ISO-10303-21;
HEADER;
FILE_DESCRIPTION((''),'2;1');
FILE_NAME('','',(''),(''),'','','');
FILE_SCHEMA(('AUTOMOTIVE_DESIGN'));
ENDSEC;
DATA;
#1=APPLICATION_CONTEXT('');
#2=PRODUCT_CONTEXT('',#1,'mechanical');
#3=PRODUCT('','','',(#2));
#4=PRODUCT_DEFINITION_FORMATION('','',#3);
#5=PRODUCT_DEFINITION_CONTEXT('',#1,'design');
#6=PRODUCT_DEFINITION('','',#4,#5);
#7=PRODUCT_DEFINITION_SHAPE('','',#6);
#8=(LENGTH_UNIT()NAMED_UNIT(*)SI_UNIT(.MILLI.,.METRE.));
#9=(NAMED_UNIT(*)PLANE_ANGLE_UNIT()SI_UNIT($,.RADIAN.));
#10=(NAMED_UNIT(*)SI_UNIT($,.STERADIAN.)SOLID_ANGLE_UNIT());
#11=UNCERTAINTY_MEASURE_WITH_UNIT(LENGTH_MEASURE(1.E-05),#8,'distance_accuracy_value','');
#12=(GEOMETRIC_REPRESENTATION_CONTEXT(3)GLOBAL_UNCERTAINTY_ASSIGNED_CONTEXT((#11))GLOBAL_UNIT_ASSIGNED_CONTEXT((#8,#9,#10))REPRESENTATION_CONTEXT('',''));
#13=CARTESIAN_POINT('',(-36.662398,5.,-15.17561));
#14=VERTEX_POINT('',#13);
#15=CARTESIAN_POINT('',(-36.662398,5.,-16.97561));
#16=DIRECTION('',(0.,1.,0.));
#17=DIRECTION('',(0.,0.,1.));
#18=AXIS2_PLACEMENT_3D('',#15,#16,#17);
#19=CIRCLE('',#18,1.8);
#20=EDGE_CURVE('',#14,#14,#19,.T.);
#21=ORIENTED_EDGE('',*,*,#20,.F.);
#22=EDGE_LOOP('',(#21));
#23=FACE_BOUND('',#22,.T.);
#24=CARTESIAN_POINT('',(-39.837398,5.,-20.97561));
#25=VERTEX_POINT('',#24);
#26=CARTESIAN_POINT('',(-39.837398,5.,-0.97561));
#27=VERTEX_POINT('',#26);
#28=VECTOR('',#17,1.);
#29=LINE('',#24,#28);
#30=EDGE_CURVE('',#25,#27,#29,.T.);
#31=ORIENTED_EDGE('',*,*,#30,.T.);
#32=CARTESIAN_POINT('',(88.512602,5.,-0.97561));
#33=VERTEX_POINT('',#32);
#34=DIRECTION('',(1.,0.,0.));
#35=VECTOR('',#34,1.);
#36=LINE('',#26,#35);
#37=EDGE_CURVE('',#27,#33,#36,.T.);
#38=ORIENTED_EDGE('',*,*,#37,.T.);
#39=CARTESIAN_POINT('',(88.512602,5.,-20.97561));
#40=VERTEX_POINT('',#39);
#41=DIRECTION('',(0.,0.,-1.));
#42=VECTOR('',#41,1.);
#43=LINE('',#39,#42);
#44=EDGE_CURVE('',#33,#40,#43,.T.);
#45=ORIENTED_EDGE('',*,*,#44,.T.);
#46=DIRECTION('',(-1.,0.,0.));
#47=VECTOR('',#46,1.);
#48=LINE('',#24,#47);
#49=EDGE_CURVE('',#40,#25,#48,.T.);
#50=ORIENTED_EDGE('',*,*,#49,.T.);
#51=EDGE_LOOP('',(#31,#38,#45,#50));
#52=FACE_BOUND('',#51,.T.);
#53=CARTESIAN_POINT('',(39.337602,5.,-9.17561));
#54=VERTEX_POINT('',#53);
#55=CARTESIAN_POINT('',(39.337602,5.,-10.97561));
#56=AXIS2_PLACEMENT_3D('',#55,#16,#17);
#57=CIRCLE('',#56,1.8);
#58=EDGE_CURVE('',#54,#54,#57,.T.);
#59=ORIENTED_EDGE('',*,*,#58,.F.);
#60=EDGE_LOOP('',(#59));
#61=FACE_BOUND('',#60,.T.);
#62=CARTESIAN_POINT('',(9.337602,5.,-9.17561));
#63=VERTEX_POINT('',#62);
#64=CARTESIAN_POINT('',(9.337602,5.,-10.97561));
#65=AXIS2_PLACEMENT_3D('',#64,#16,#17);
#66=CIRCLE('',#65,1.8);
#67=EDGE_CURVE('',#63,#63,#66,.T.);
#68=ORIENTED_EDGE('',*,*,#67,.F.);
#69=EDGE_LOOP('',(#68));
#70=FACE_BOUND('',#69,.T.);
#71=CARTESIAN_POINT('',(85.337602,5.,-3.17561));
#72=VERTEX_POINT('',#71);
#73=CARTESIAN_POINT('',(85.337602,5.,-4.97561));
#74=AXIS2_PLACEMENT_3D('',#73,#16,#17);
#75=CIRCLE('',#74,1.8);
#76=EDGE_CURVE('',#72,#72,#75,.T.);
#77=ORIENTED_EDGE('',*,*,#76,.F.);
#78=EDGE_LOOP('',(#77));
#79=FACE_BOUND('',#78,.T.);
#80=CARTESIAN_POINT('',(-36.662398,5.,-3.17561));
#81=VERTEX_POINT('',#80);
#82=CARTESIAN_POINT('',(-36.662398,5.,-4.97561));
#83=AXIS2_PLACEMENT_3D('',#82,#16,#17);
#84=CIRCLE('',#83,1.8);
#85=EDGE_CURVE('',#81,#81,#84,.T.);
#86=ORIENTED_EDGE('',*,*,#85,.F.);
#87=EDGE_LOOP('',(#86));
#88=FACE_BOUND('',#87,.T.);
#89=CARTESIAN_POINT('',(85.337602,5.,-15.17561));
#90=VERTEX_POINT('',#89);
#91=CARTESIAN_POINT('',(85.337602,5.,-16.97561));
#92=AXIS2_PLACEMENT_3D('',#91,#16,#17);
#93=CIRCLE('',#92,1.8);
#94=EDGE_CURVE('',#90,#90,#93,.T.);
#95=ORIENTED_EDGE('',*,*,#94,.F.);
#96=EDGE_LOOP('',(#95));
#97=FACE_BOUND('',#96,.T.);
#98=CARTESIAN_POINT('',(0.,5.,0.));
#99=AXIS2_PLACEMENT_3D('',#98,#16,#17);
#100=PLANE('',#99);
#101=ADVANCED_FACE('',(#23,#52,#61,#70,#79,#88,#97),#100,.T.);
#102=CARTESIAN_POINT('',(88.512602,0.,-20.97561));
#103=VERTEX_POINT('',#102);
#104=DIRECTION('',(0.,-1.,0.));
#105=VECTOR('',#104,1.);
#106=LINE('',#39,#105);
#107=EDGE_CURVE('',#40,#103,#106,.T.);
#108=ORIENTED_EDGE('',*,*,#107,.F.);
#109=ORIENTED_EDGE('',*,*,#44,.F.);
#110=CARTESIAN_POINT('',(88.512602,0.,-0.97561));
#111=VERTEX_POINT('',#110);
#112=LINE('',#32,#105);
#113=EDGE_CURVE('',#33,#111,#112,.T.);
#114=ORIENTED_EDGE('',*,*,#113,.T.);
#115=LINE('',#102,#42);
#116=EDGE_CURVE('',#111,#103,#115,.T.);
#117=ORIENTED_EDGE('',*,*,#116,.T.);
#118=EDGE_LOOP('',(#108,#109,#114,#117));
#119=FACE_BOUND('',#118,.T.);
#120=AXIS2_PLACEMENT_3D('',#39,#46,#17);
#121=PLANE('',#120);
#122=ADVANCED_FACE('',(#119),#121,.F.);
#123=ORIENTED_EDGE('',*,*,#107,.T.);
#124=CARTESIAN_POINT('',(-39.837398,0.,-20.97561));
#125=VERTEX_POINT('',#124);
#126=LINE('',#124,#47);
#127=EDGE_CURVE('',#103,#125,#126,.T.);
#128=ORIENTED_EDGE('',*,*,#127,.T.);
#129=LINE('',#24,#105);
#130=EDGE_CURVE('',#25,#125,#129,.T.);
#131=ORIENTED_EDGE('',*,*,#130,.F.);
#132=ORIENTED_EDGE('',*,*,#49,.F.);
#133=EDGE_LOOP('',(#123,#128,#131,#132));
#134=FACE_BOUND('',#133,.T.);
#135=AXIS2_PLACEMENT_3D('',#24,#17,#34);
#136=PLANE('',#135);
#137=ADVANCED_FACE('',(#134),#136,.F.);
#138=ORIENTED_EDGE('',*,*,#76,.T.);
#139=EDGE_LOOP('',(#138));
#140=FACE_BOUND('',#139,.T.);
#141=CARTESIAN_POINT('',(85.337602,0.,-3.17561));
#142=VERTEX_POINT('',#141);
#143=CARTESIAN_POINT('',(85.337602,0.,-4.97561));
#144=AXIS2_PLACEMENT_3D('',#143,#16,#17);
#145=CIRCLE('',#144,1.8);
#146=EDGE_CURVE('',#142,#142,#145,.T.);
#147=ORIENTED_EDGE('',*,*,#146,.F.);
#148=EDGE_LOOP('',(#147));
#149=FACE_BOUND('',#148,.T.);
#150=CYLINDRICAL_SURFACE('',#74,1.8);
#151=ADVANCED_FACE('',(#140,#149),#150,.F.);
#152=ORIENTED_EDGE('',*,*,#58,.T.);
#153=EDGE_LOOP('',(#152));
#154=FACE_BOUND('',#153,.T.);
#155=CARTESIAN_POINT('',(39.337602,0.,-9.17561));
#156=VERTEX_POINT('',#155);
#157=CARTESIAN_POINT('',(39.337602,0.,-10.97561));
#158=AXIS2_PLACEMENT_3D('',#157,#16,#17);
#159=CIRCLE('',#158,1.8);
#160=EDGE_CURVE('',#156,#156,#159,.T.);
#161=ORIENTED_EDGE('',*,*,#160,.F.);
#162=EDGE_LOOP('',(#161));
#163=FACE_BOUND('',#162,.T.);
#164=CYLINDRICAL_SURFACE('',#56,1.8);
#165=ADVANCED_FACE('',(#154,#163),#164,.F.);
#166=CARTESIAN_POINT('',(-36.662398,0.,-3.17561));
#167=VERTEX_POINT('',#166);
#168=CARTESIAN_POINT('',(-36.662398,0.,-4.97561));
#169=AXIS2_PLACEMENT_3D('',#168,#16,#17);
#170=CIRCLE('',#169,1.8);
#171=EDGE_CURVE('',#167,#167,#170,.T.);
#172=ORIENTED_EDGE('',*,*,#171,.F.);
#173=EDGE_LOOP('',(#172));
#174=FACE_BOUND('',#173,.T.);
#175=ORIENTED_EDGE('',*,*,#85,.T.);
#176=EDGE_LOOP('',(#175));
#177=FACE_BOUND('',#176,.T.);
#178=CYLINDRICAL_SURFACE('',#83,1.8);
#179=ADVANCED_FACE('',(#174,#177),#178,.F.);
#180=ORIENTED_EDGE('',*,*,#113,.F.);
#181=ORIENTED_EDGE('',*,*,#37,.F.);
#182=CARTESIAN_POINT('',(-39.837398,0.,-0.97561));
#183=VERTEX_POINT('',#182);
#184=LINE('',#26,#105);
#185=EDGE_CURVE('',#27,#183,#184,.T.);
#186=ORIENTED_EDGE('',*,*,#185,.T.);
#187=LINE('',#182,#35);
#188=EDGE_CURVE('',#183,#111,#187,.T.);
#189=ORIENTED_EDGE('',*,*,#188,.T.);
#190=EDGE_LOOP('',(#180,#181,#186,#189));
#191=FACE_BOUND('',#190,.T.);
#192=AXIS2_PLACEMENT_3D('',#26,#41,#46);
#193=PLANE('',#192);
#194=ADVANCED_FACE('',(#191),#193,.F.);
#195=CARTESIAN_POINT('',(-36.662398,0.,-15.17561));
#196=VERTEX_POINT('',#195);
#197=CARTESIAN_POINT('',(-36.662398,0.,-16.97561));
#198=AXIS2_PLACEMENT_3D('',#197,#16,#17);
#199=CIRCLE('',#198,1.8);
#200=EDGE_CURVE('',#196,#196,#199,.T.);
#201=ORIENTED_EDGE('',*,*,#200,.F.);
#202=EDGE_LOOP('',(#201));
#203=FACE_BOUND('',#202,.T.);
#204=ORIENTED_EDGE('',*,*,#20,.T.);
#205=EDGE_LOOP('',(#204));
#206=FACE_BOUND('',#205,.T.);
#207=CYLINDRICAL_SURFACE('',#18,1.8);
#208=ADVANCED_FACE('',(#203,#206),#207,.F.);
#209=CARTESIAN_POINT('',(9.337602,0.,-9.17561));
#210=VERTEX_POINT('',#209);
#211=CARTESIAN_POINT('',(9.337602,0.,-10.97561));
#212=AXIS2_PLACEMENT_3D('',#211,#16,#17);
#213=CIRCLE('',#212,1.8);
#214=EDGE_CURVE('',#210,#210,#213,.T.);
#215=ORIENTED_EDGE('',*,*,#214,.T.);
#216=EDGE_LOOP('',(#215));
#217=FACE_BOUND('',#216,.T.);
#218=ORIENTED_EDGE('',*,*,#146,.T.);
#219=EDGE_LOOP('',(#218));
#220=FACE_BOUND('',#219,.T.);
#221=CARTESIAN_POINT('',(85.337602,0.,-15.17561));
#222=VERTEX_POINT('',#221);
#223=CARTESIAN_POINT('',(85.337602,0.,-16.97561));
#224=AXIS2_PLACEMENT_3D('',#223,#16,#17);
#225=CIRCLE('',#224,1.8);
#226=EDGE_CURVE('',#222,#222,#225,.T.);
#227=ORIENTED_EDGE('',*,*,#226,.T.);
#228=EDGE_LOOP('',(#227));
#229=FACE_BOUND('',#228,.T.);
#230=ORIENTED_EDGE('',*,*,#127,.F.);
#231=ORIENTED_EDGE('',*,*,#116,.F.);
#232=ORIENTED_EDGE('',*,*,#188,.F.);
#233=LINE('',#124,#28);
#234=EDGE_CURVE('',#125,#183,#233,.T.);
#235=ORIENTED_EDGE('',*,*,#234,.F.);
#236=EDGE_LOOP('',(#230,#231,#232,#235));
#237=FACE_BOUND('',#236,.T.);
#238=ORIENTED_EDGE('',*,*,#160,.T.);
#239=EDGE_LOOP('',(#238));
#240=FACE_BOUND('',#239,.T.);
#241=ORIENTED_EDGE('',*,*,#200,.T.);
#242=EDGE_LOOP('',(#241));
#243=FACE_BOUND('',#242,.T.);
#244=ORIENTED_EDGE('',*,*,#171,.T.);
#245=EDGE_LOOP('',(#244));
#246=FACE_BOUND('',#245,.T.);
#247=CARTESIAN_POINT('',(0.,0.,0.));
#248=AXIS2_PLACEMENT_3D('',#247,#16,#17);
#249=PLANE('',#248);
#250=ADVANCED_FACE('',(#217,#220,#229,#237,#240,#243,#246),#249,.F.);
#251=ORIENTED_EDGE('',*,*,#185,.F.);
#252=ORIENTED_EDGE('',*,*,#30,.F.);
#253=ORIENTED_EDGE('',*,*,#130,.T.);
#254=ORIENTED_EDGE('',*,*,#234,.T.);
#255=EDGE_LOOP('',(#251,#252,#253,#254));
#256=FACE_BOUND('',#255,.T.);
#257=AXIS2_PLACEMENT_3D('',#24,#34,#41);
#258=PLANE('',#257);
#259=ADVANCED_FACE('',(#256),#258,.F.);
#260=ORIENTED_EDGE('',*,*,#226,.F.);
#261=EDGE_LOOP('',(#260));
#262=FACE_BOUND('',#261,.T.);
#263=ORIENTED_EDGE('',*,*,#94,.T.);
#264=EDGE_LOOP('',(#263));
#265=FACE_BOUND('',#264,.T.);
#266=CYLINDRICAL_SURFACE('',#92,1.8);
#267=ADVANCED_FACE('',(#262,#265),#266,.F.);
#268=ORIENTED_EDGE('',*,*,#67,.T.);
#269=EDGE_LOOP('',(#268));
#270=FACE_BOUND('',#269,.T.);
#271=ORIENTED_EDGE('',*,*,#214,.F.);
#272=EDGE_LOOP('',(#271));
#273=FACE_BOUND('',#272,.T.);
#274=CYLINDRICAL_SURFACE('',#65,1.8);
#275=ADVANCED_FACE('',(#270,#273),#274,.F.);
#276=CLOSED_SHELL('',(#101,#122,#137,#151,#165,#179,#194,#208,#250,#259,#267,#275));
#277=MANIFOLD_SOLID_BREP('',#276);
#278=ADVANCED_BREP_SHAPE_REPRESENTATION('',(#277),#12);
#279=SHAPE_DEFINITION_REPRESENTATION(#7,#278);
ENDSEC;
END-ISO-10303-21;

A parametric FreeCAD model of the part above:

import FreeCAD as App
import Part
import Sketcher

V = App.Vector


def add_polygon(sketch, points):
    """Adds a closed chain of lines whose ends are joined by coincident constraints."""
    first, n = sketch.GeometryCount, len(points)
    for a, b in zip(points, points[1:] + points[:1]):
        sketch.addGeometry(Part.LineSegment(App.Vector(*a, 0), App.Vector(*b, 0)), False)
    for i in range(n):
        sketch.addConstraint(Sketcher.Constraint("Coincident", first + i, 2, first + (i + 1) % n, 1))

doc = App.newDocument("Part")
body = doc.addObject("PartDesign::Body", "Body")

sketch1 = body.newObject("Sketcher::SketchObject", "Sketch")
sketch1.AttachmentSupport = (doc.getObject("XZ_Plane"), [""])
sketch1.MapMode = "FlatFace"
add_polygon(sketch1, [(-39.837398, -20.97561), (-39.837398, -0.97561), (88.512602, -0.97561), (88.512602, -20.97561)])
sketch1.addConstraint(Sketcher.Constraint("Vertical", 0))
sketch1.addConstraint(Sketcher.Constraint("Horizontal", 1))
sketch1.addConstraint(Sketcher.Constraint("Vertical", 2))
sketch1.addConstraint(Sketcher.Constraint("Horizontal", 3))
sketch1.addConstraint(Sketcher.Constraint("DistanceY", 0, 1, 0, 2, 20.0))
sketch1.addConstraint(Sketcher.Constraint("DistanceX", 1, 1, 1, 2, 128.35))
sketch1.addConstraint(Sketcher.Constraint("DistanceX", 0, 2, -1, 1, 39.837398))
sketch1.addConstraint(Sketcher.Constraint("DistanceY", 0, 2, -1, 1, 0.97561))
pad1 = body.newObject("PartDesign::Pad", "Pad")
pad1.Profile = sketch1
pad1.Length = 5
pad1.Reversed = True

sketch2 = body.newObject("Sketcher::SketchObject", "Sketch001")
sketch2.AttachmentSupport = (doc.getObject("XZ_Plane"), [""])
sketch2.MapMode = "FlatFace"
sketch2.AttachmentOffset = App.Placement(V(0, 0, -5), App.Rotation())
sketch2.addGeometry(Part.Circle(V(-36.662398, -16.97561, 0), V(0, 0, 1), 1.8), False)
sketch2.addGeometry(Part.Circle(V(-36.662398, -4.97561, 0), V(0, 0, 1), 1.8), False)
sketch2.addGeometry(Part.Circle(V(85.337602, -16.97561, 0), V(0, 0, 1), 1.8), False)
sketch2.addGeometry(Part.Circle(V(85.337602, -4.97561, 0), V(0, 0, 1), 1.8), False)
sketch2.addConstraint(Sketcher.Constraint("Equal", 0, 1))
sketch2.addConstraint(Sketcher.Constraint("Equal", 1, 2))
sketch2.addConstraint(Sketcher.Constraint("Equal", 2, 3))
sketch2.addConstraint(Sketcher.Constraint("Horizontal", 0, 3, 2, 3))
sketch2.addConstraint(Sketcher.Constraint("Horizontal", 1, 3, 3, 3))
sketch2.addConstraint(Sketcher.Constraint("Vertical", 0, 3, 1, 3))
sketch2.addConstraint(Sketcher.Constraint("Vertical", 2, 3, 3, 3))
sketch2.addConstraint(Sketcher.Constraint("Diameter", 0, 3.6))
sketch2.addConstraint(Sketcher.Constraint("DistanceY", 0, 3, 1, 3, 12.0))
sketch2.addConstraint(Sketcher.Constraint("DistanceX", 0, 3, 2, 3, 122.0))
sketch2.addConstraint(Sketcher.Constraint("DistanceX", 0, 3, -1, 1, 36.662398))
sketch2.addConstraint(Sketcher.Constraint("DistanceY", 0, 3, -1, 1, 16.97561))
doc.recompute()
hole = body.newObject("PartDesign::Hole", "Hole")
hole.Profile = sketch2
hole.ThreadType = "None"
hole.Diameter = 3.6
hole.DepthType = "ThroughAll"
hole.Reversed = True

sketch3 = body.newObject("Sketcher::SketchObject", "Sketch002")
sketch3.AttachmentSupport = (doc.getObject("XZ_Plane"), [""])
sketch3.MapMode = "FlatFace"
sketch3.AttachmentOffset = App.Placement(V(0, 0, -5), App.Rotation())
sketch3.addGeometry(Part.Circle(V(9.337602, -10.97561, 0), V(0, 0, 1), 1.8), False)
sketch3.addGeometry(Part.Circle(V(39.337602, -10.97561, 0), V(0, 0, 1), 1.8), False)
sketch3.addConstraint(Sketcher.Constraint("Equal", 0, 1))
sketch3.addConstraint(Sketcher.Constraint("Horizontal", 0, 3, 1, 3))
sketch3.addConstraint(Sketcher.Constraint("Diameter", 0, 3.6))
sketch3.addConstraint(Sketcher.Constraint("DistanceX", 0, 3, 1, 3, 30.0))
sketch3.addConstraint(Sketcher.Constraint("DistanceX", -1, 1, 0, 3, 9.337602))
sketch3.addConstraint(Sketcher.Constraint("DistanceY", 0, 3, -1, 1, 10.97561))
doc.recompute()
hole2 = body.newObject("PartDesign::Hole", "Hole001")
hole2.Profile = sketch3
hole2.ThreadType = "None"
hole2.Diameter = 3.6
hole2.DepthType = "ThroughAll"
hole2.Reversed = True

doc.recompute()
